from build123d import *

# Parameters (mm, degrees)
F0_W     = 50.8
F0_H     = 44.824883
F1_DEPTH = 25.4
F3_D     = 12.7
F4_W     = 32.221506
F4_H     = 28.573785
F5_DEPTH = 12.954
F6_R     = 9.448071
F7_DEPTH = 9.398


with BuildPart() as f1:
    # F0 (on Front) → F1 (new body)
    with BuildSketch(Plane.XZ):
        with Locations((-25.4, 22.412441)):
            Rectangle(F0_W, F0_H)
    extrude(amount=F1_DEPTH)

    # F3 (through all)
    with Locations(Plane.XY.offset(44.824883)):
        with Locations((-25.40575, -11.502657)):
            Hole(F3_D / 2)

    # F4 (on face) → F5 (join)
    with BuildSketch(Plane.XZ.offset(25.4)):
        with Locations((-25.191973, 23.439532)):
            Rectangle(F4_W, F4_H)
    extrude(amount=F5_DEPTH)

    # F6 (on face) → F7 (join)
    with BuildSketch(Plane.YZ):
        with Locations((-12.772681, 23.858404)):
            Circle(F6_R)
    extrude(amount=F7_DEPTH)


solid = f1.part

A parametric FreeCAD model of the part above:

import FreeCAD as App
import Part
import Sketcher
from FreeCAD import Vector
Q = App.Units.Quantity

doc = App.newDocument("Part")
body = doc.addObject("PartDesign::Body", "Body")

# Sketch on XZ plane
sketch1 = body.newObject("Sketcher::SketchObject", "Sketch")
sketch1.AttachmentSupport = (doc.getObject("XZ_Plane"), [""])
sketch1.MapMode = "FlatFace"
sketch1.addGeometry([
    Part.LineSegment(Vector(-51, 45, 0), Vector(-51, 0, 0)),
    Part.LineSegment(Vector(-51, 0, 0), Vector(0, 0, 0)),
    Part.LineSegment(Vector(0, 0, 0), Vector(0, 45, 0)),
    Part.LineSegment(Vector(0, 45, 0), Vector(-51, 45, 0)),
], False)
sketch1.addConstraint([
    Sketcher.Constraint("Coincident", 0, 2, 1, 1),
    Sketcher.Constraint("Coincident", 1, 2, 2, 1),
    Sketcher.Constraint("Coincident", 2, 2, 3, 1),
    Sketcher.Constraint("Coincident", 3, 2, 0, 1),
    Sketcher.Constraint("Vertical", 0),
    Sketcher.Constraint("Horizontal", 1),
    Sketcher.Constraint("Vertical", 2),
    Sketcher.Constraint("Horizontal", 3),
    Sketcher.Constraint("Coincident", 1, 2, -1, 1),
    Sketcher.Constraint("DistanceX", 1, 1, 1, 2, Q("2 in")),
    Sketcher.Constraint("DistanceY", 0, 2, 0, 1, Q("44.824883 mm")),
])
pad1 = body.newObject("PartDesign::Pad", "Pad")
pad1.Profile = sketch1
pad1.Length = Q("1 in")

# Sketch on XY plane
sketch2 = body.newObject("Sketcher::SketchObject", "Sketch001")
sketch2.AttachmentSupport = (doc.getObject("XY_Plane"), [""])
sketch2.MapMode = "FlatFace"
sketch2.AttachmentOffset = App.Placement(Vector(0, 0, 44.824883), App.Rotation())
sketch2.addGeometry(Part.Circle(Vector(-25, -12, 0), Vector(0, 0, 1), 6), False)
sketch2.addConstraint([
    Sketcher.Constraint("Diameter", 0, Q("0.5 in")),
    Sketcher.Constraint("DistanceX", 0, 3, -1, 1, Q("25.40575 mm")),
    Sketcher.Constraint("DistanceY", 0, 3, -1, 1, Q("11.502657 mm")),
])
doc.recompute()
hole = body.newObject("PartDesign::Hole", "Hole")
hole.Profile = sketch2
hole.ThreadType = "None"
hole.Diameter = Q("0.5 in")
hole.DepthType = "ThroughAll"

# Sketch on XZ plane
sketch3 = body.newObject("Sketcher::SketchObject", "Sketch002")
sketch3.AttachmentSupport = (doc.getObject("XZ_Plane"), [""])
sketch3.MapMode = "FlatFace"
sketch3.AttachmentOffset = App.Placement(Vector(0, 0, 1 * 25.4), App.Rotation())
sketch3.addGeometry([
    Part.LineSegment(Vector(-41, 38, 0), Vector(-41, 9, 0)),
    Part.LineSegment(Vector(-41, 9, 0), Vector(-9, 9, 0)),
    Part.LineSegment(Vector(-9, 9, 0), Vector(-9, 38, 0)),
    Part.LineSegment(Vector(-9, 38, 0), Vector(-41, 38, 0)),
], False)
sketch3.addConstraint([
    Sketcher.Constraint("Coincident", 0, 2, 1, 1),
    Sketcher.Constraint("Coincident", 1, 2, 2, 1),
    Sketcher.Constraint("Coincident", 2, 2, 3, 1),
    Sketcher.Constraint("Coincident", 3, 2, 0, 1),
    Sketcher.Constraint("Vertical", 0),
    Sketcher.Constraint("Horizontal", 1),
    Sketcher.Constraint("Vertical", 2),
    Sketcher.Constraint("Horizontal", 3),
    Sketcher.Constraint("DistanceX", 1, 1, 1, 2, Q("32.221506 mm")),
    Sketcher.Constraint("DistanceY", 0, 2, 0, 1, Q("28.573785 mm")),
    Sketcher.Constraint("DistanceY", -1, 1, 0, 2, Q("9.152639 mm")),
    Sketcher.Constraint("DistanceX", 1, 2, -1, 1, Q("9.08122 mm")),
])
pad2 = body.newObject("PartDesign::Pad", "Pad001")
pad2.Profile = sketch3
pad2.Length = Q("0.51 in")

# Sketch on YZ plane
sketch4 = body.newObject("Sketcher::SketchObject", "Sketch003")
sketch4.AttachmentSupport = (doc.getObject("YZ_Plane"), [""])
sketch4.MapMode = "FlatFace"
sketch4.addGeometry(Part.Circle(Vector(-13, 24, 0), Vector(0, 0, 1), 9), False)
sketch4.addConstraint([
    Sketcher.Constraint("Diameter", 0, Q("18.896142 mm")),
    Sketcher.Constraint("DistanceX", 0, 3, -1, 1, Q("12.772681 mm")),
    Sketcher.Constraint("DistanceY", -1, 1, 0, 3, Q("23.858404 mm")),
])
pad3 = body.newObject("PartDesign::Pad", "Pad002")
pad3.Profile = sketch4
pad3.Length = Q("0.37 in")

doc.recompute()
